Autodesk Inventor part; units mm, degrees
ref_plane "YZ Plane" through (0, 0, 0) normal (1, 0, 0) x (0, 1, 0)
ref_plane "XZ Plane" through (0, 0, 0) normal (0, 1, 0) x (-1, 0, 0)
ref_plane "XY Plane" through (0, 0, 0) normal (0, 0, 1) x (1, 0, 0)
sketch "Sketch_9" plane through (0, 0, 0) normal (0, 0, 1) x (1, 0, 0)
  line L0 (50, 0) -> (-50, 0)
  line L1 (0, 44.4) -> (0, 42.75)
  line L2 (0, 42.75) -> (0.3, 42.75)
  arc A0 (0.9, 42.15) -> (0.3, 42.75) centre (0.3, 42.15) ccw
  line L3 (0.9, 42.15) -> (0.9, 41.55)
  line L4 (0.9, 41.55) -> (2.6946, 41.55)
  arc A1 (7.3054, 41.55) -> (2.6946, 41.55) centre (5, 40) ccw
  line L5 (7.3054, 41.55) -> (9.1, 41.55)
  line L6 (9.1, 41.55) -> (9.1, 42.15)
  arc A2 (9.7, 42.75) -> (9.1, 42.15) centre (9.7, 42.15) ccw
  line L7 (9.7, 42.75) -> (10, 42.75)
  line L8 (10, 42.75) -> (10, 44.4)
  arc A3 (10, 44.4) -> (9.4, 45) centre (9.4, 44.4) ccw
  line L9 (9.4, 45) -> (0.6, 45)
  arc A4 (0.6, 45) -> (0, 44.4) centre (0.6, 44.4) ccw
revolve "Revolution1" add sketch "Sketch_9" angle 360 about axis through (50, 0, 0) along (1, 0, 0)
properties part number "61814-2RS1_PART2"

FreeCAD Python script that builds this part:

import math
import FreeCAD as App
import Part
import Sketcher

V = App.Vector

doc = App.newDocument("Part")
body = doc.addObject("PartDesign::Body", "Body")

sketch1 = body.newObject("Sketcher::SketchObject", "Sketch")
sketch1.AttachmentSupport = (doc.getObject("XY_Plane"), [""])
sketch1.MapMode = "FlatFace"
sketch1.addGeometry([
    Part.ArcOfCircle(Part.Circle(V(0.6, 44.4, 0), V(0, 0, 1), 0.6), math.radians(90), math.radians(180)),
    Part.LineSegment(V(0, 44.4, 0), V(0, 42.75, 0)),
    Part.LineSegment(V(0, 42.75, 0), V(0.3, 42.75, 0)),
    Part.ArcOfCircle(Part.Circle(V(0.3, 42.15, 0), V(0, 0, 1), 0.6), math.radians(0), math.radians(90)),
    Part.LineSegment(V(0.9, 42.15, 0), V(0.9, 41.55, 0)),
    Part.LineSegment(V(0.9, 41.55, 0), V(2.6946, 41.55, 0)),
    Part.ArcOfCircle(Part.Circle(V(5, 40, 0), V(0, 0, 1), 2.778015), math.radians(33.914303), math.radians(146.085697)),
    Part.LineSegment(V(7.3054, 41.55, 0), V(9.1, 41.55, 0)),
    Part.LineSegment(V(9.1, 41.55, 0), V(9.1, 42.15, 0)),
    Part.ArcOfCircle(Part.Circle(V(9.7, 42.15, 0), V(0, 0, 1), 0.6), math.radians(90), math.radians(180)),
    Part.LineSegment(V(9.7, 42.75, 0), V(10, 42.75, 0)),
    Part.LineSegment(V(10, 42.75, 0), V(10, 44.4, 0)),
    Part.ArcOfCircle(Part.Circle(V(9.4, 44.4, 0), V(0, 0, 1), 0.6), math.radians(0), math.radians(90)),
    Part.LineSegment(V(9.4, 45, 0), V(0.6, 45, 0)),
], False)
sketch1.addConstraint([
    Sketcher.Constraint("Tangent", 0, 2, 1, 1),
    Sketcher.Constraint("Coincident", 1, 2, 2, 1),
    Sketcher.Constraint("Tangent", 2, 2, 3, 2),
    Sketcher.Constraint("Tangent", 3, 1, 4, 1),
    Sketcher.Constraint("Coincident", 4, 2, 5, 1),
    Sketcher.Constraint("Coincident", 5, 2, 6, 2),
    Sketcher.Constraint("Coincident", 6, 1, 7, 1),
    Sketcher.Constraint("Coincident", 7, 2, 8, 1),
    Sketcher.Constraint("Tangent", 8, 2, 9, 2),
    Sketcher.Constraint("Tangent", 9, 1, 10, 1),
    Sketcher.Constraint("Coincident", 10, 2, 11, 1),
    Sketcher.Constraint("Tangent", 11, 2, 12, 1),
    Sketcher.Constraint("Tangent", 12, 2, 13, 1),
    Sketcher.Constraint("Tangent", 13, 2, 0, 1),
    Sketcher.Constraint("Vertical", 1),
    Sketcher.Constraint("Horizontal", 2),
    Sketcher.Constraint("Vertical", 4),
    Sketcher.Constraint("Horizontal", 5),
    Sketcher.Constraint("Horizontal", 7),
    Sketcher.Constraint("Vertical", 8),
    Sketcher.Constraint("Horizontal", 10),
    Sketcher.Constraint("Vertical", 11),
    Sketcher.Constraint("Horizontal", 13),
    Sketcher.Constraint("Equal", 0, 3),
    Sketcher.Constraint("Equal", 3, 9),
    Sketcher.Constraint("Equal", 9, 12),
    Sketcher.Constraint("PointOnObject", 0, 2, -2),
    Sketcher.Constraint("Horizontal", 3, 3, 9, 3),
    Sketcher.Constraint("Horizontal", 5, 2, 6, 1),
    Sketcher.Constraint("Equal", 5, 7),
    Sketcher.Constraint("Equal", 2, 10),
    Sketcher.Constraint("Radius", 0, 0.6),
    Sketcher.Constraint("DistanceX", 2, 1, 2, 2, 0.3),
    Sketcher.Constraint("DistanceX", 13, 2, 13, 1, 8.8),
    Sketcher.Constraint("DistanceY", 4, 2, 4, 1, 0.6),
    Sketcher.Constraint("DistanceY", -1, 1, 6, 3, 40.0),
    Sketcher.Constraint("DistanceY", -1, 1, 12, 2, 45.0),
    Sketcher.Constraint("Radius", 6, 2.778),
    Sketcher.Constraint("DistanceY", 1, 2, 1, 1, 1.65),
])
revolution = body.newObject("PartDesign::Revolution", "Revolution")
revolution.Profile = sketch1
revolution.ReferenceAxis = (sketch1, ["H_Axis"])
revolution.Angle = 360

doc.recompute()
